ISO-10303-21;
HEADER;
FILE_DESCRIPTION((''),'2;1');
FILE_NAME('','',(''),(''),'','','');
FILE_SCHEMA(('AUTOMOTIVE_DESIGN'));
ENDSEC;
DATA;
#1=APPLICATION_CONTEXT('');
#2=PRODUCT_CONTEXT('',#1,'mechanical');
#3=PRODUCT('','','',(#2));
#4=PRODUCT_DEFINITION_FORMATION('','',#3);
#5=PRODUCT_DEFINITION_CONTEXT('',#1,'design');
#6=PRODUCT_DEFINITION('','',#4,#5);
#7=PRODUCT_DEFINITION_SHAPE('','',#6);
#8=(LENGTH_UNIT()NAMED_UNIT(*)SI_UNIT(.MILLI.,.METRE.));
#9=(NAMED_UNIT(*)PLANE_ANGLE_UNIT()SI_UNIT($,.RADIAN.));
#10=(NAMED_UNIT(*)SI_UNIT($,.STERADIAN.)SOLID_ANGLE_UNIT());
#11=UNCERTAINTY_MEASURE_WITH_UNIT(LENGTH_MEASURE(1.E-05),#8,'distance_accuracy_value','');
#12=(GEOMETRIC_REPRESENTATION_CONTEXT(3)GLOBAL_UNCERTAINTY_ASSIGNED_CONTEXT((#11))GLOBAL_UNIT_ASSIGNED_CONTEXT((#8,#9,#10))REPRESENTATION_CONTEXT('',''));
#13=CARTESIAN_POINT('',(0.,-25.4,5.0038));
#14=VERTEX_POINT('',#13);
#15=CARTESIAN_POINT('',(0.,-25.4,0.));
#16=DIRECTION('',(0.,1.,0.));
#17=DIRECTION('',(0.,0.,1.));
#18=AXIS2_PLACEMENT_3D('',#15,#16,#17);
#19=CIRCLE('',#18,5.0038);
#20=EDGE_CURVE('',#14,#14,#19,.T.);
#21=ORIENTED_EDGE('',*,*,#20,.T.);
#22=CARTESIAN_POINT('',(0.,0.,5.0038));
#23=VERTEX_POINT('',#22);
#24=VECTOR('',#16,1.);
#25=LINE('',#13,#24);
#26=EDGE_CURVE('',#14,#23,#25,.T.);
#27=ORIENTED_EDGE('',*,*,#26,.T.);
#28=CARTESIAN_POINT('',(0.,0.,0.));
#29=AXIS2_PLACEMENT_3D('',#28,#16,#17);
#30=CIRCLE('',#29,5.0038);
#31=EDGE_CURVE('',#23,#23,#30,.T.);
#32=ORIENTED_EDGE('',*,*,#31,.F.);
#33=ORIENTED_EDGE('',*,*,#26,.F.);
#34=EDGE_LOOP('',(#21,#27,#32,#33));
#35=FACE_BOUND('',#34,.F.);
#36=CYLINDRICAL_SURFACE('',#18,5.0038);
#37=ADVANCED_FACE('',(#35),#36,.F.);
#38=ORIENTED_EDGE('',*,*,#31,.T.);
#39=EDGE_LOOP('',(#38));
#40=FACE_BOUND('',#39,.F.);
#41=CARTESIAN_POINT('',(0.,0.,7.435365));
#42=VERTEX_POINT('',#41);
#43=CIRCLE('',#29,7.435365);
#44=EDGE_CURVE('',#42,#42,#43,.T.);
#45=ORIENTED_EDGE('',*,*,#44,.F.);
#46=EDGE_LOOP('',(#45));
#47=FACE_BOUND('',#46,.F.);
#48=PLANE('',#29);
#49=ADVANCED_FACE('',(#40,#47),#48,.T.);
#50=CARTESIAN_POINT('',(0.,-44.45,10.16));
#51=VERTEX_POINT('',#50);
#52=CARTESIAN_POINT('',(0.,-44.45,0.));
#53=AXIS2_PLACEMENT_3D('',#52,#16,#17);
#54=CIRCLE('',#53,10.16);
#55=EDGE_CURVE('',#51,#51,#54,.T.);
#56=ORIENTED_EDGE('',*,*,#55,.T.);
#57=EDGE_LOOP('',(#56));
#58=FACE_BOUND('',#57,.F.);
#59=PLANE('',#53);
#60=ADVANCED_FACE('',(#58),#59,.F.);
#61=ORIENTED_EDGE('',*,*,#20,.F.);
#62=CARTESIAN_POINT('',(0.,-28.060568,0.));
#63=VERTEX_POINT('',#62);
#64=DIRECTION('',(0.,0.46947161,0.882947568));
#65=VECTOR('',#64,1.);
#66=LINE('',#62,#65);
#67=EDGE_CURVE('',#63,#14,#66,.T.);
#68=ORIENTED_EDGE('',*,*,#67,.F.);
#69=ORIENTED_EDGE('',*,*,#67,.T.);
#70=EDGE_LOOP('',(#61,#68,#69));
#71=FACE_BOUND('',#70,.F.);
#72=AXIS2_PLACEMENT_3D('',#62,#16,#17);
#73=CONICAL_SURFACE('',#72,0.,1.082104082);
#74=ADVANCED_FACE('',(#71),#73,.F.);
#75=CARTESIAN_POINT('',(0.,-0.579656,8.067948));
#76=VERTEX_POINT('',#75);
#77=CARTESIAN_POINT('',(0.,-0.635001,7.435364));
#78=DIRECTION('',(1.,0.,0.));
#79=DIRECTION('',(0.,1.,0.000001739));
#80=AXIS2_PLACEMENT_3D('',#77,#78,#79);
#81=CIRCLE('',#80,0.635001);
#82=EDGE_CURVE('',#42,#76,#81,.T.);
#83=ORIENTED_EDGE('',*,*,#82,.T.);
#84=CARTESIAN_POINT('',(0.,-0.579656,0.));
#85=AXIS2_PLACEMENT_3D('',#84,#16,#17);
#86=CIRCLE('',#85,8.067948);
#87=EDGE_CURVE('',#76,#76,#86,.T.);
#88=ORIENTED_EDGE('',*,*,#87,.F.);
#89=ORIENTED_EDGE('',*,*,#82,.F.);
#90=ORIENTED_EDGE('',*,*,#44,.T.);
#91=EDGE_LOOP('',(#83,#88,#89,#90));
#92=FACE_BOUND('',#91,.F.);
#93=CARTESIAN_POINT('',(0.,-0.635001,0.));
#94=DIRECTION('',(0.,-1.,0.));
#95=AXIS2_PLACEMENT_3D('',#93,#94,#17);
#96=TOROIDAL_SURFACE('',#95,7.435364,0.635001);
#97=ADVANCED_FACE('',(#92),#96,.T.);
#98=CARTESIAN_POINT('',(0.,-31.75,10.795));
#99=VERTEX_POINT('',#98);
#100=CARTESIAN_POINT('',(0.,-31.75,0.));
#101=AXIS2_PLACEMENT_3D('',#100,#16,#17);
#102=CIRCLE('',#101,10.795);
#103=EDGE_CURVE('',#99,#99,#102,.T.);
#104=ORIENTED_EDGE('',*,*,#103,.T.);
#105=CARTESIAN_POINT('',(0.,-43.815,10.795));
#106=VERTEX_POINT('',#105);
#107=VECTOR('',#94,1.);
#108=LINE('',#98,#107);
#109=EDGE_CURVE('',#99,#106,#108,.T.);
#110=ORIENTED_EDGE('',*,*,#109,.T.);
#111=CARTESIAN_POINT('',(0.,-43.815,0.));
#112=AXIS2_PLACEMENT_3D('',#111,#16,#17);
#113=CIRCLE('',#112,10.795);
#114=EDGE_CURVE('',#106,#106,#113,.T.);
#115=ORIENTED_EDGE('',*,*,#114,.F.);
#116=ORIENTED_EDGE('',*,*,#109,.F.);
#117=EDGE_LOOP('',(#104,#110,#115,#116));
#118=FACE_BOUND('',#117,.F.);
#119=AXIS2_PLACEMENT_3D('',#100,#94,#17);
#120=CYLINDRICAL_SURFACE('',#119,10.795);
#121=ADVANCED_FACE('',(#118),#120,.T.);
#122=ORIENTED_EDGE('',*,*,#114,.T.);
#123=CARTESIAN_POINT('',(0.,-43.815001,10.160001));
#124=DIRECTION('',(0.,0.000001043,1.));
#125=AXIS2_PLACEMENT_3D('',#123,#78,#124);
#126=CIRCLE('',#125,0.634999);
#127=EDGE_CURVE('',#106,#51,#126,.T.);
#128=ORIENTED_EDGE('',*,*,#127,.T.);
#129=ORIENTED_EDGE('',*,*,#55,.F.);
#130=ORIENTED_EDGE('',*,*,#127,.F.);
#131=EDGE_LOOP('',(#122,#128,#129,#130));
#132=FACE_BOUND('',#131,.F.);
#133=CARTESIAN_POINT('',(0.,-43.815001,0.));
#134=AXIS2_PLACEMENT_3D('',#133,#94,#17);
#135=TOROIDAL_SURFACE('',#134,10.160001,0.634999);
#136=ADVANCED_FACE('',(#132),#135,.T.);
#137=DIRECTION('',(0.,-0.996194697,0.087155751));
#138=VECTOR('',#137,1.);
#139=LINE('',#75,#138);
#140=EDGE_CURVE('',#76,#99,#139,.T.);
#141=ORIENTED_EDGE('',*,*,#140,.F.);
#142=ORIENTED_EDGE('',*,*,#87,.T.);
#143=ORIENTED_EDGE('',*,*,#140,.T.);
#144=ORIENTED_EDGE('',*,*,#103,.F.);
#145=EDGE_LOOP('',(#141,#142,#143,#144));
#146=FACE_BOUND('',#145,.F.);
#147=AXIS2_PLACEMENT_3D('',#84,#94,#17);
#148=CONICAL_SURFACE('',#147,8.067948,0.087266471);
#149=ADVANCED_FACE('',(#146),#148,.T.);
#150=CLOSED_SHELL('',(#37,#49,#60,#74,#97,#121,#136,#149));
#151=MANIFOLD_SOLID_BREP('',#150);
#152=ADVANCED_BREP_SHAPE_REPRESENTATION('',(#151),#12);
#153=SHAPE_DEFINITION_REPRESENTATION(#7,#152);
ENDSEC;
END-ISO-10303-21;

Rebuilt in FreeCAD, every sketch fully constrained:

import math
import FreeCAD as App
import Part
import Sketcher
Q = App.Units.Quantity

doc = App.newDocument("Part")
body = doc.addObject("PartDesign::Body", "Body")

sketch1 = body.newObject("Sketcher::SketchObject", "Sketch")
sketch1.AttachmentSupport = (doc.getObject("YZ_Plane"), [""])
sketch1.MapMode = "FlatFace"
sketch1.addGeometry(Part.LineSegment(App.Vector(-25.4, 5.0038, 0), App.Vector(0, 5.0038, 0)), False)
sketch1.addGeometry(Part.LineSegment(App.Vector(0, 5.0038, 0), App.Vector(0, 7.435365, 0)), False)
sketch1.addGeometry(Part.ArcOfCircle(Part.Circle(App.Vector(-0.635001, 7.435364, 0), App.Vector(0, 0, 1), 0.635001), math.radians(0.0001), math.radians(84.999947)), False)
sketch1.addGeometry(Part.LineSegment(App.Vector(-0.579656, 8.067948, 0), App.Vector(-31.75, 10.795, 0)), False)
sketch1.addGeometry(Part.LineSegment(App.Vector(-31.75, 10.795, 0), App.Vector(-43.815, 10.795, 0)), False)
sketch1.addGeometry(Part.ArcOfCircle(Part.Circle(App.Vector(-43.815001, 10.160001, 0), App.Vector(0, 0, 1), 0.634999), math.radians(89.99994), math.radians(180.00006)), False)
sketch1.addGeometry(Part.LineSegment(App.Vector(-44.45, 10.16, 0), App.Vector(-44.45, 0, 0)), False)
sketch1.addGeometry(Part.LineSegment(App.Vector(-44.45, 0, 0), App.Vector(-28.060568, 0, 0)), False)
sketch1.addGeometry(Part.LineSegment(App.Vector(-28.060568, 0, 0), App.Vector(-25.4, 5.0038, 0)), False)
sketch1.addConstraint(Sketcher.Constraint("Coincident", 0, 2, 1, 1))
sketch1.addConstraint(Sketcher.Constraint("Tangent", 1, 2, 2, 1))
sketch1.addConstraint(Sketcher.Constraint("Tangent", 2, 2, 3, 1))
sketch1.addConstraint(Sketcher.Constraint("Coincident", 3, 2, 4, 1))
sketch1.addConstraint(Sketcher.Constraint("Tangent", 4, 2, 5, 1))
sketch1.addConstraint(Sketcher.Constraint("Tangent", 5, 2, 6, 1))
sketch1.addConstraint(Sketcher.Constraint("Coincident", 6, 2, 7, 1))
sketch1.addConstraint(Sketcher.Constraint("Coincident", 7, 2, 8, 1))
sketch1.addConstraint(Sketcher.Constraint("Coincident", 8, 2, 0, 1))
sketch1.addConstraint(Sketcher.Constraint("Horizontal", 0))
sketch1.addConstraint(Sketcher.Constraint("Vertical", 1))
sketch1.addConstraint(Sketcher.Constraint("Horizontal", 4))
sketch1.addConstraint(Sketcher.Constraint("Vertical", 6))
sketch1.addConstraint(Sketcher.Constraint("Horizontal", 7))
sketch1.addConstraint(Sketcher.Constraint("Equal", 2, 5))
sketch1.addConstraint(Sketcher.Constraint("PointOnObject", 0, 2, -2))
sketch1.addConstraint(Sketcher.Constraint("PointOnObject", 6, 2, -1))
sketch1.addConstraint(Sketcher.Constraint("DistanceX", 0, 1, 0, 2, Q("1 in")))
sketch1.addConstraint(Sketcher.Constraint("DistanceY", 6, 2, 6, 1, Q("0.4 in")))
sketch1.addConstraint(Sketcher.Constraint("Angle", 3, Q("175 deg")))
sketch1.addConstraint(Sketcher.Constraint("Angle", 8, Q("61.999997 deg")))
sketch1.addConstraint(Sketcher.Constraint("Radius", 2, Q("0.025 in")))
sketch1.addConstraint(Sketcher.Constraint("DistanceX", 5, 3, 2, 3, Q("1.7 in")))
sketch1.addConstraint(Sketcher.Constraint("DistanceX", 5, 2, 3, 2, Q("0.5 in")))
sketch1.addConstraint(Sketcher.Constraint("DistanceY", -1, 1, 0, 2, Q("0.197 in")))
revolution = body.newObject("PartDesign::Revolution", "Revolution")
revolution.Profile = sketch1
revolution.ReferenceAxis = (sketch1, ["H_Axis"])
revolution.Angle = 360

doc.recompute()
